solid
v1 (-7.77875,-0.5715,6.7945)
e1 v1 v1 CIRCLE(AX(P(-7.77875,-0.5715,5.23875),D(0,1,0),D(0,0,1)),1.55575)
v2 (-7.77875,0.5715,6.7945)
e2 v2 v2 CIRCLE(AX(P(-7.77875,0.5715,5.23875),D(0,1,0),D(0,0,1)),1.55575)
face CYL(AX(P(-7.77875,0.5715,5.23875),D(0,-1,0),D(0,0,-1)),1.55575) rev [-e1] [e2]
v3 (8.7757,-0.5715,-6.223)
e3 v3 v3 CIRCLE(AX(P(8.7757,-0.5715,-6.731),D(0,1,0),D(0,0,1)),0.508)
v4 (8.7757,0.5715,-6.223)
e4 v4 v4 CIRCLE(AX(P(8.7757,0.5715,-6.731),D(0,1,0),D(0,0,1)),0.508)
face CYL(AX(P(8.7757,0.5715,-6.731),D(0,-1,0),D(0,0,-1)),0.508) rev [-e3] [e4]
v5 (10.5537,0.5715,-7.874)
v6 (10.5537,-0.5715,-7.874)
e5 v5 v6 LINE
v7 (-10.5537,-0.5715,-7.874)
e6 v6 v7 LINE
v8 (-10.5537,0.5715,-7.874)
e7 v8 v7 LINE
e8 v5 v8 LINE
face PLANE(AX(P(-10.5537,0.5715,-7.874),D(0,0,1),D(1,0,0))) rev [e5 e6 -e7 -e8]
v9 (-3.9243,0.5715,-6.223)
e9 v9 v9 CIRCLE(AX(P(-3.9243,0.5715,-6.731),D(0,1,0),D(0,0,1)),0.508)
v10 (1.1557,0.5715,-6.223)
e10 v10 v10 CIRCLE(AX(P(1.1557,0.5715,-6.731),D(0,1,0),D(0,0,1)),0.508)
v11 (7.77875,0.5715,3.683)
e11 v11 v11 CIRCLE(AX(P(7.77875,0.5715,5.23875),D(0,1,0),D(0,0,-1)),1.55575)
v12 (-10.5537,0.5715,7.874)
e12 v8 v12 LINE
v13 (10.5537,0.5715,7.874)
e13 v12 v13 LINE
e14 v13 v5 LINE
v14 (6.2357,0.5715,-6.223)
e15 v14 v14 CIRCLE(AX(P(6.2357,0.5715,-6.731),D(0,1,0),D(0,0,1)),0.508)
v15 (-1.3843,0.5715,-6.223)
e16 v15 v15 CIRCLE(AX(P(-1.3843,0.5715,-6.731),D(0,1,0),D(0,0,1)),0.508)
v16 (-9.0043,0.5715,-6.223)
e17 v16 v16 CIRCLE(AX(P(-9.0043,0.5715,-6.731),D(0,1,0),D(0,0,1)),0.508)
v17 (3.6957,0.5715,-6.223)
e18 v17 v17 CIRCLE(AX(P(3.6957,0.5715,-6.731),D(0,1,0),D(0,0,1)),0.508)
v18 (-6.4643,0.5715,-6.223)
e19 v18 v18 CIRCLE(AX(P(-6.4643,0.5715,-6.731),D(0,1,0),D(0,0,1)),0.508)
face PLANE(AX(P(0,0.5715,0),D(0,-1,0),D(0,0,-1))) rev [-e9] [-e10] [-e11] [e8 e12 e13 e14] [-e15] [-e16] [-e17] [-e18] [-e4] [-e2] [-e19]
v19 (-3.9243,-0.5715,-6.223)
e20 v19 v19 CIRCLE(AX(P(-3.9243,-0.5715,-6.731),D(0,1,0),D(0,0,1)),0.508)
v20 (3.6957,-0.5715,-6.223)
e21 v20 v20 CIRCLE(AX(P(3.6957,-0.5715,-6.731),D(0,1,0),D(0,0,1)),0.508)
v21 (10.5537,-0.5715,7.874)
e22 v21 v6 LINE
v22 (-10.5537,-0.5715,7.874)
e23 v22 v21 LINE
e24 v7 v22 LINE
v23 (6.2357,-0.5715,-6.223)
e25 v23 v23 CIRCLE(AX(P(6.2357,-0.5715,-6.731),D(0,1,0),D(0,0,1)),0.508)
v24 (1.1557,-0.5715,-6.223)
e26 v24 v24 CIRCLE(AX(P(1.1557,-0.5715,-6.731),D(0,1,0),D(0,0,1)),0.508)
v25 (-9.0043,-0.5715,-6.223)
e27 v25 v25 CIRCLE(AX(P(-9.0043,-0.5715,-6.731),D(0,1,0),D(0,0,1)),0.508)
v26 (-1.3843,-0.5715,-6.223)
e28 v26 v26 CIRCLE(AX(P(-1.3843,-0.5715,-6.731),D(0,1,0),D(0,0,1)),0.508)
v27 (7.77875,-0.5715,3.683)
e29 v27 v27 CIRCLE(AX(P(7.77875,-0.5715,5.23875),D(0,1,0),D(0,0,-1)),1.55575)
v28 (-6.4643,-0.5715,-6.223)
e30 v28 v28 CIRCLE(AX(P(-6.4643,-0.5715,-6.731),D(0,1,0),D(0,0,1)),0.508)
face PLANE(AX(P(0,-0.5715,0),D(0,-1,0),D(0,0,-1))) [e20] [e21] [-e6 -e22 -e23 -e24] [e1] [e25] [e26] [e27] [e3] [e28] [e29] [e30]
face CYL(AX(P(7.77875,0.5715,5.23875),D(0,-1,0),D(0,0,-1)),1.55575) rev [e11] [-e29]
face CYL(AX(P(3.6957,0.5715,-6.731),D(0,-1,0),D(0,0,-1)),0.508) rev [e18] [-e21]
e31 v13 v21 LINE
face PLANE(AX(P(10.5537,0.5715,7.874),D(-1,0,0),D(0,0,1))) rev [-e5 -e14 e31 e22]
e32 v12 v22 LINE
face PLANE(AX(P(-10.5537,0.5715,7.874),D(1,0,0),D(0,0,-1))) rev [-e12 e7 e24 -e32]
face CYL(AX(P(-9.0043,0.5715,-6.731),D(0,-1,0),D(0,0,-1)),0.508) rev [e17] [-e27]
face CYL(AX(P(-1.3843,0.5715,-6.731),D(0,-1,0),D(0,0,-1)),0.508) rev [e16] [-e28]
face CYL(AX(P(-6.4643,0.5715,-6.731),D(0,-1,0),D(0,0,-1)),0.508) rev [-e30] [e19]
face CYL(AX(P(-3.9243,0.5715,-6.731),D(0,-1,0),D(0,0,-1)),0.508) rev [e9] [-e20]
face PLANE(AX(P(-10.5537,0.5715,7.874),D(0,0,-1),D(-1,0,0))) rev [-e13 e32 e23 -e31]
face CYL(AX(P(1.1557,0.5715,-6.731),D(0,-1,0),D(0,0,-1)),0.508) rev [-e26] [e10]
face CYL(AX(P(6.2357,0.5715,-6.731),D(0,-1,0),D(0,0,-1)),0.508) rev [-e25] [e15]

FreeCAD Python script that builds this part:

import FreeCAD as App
import Part
import Sketcher
from FreeCAD import Vector
Q = App.Units.Quantity

doc = App.newDocument("Part")
body = doc.addObject("PartDesign::Body", "Body")

# Sketch on XZ plane
sketch1 = doc.addObject("Sketcher::SketchObject", "Sketch")
body.addObject(sketch1)
sketch1.AttachmentSupport = (doc.XZ_Plane, [""])
sketch1.MapMode = "FlatFace"
sketch1.addGeometry(Part.LineSegment(Vector(-10.6, -7.9, 0), Vector(-10.6, 7.9, 0)), False)
sketch1.addGeometry(Part.LineSegment(Vector(-10.6, 7.9, 0), Vector(10.6, 7.9, 0)), False)
sketch1.addGeometry(Part.LineSegment(Vector(10.6, 7.9, 0), Vector(10.6, -7.9, 0)), False)
sketch1.addGeometry(Part.LineSegment(Vector(10.6, -7.9, 0), Vector(-10.6, -7.9, 0)), False)
sketch1.addGeometry(Part.Circle(Vector(-7.8, 5.2, 0), Vector(0, 0, 1), 1.6), False)
sketch1.addGeometry(Part.Circle(Vector(7.8, 5.2, 0), Vector(0, 0, 1), 1.6), False)
sketch1.addGeometry(Part.Circle(Vector(-9, -6.7, 0), Vector(0, 0, 1), 0.5), False)
sketch1.addGeometry(Part.Circle(Vector(-6.5, -6.7, 0), Vector(0, 0, 1), 0.5), False)
sketch1.addGeometry(Part.Circle(Vector(-3.9, -6.7, 0), Vector(0, 0, 1), 0.5), False)
sketch1.addGeometry(Part.Circle(Vector(-1.4, -6.7, 0), Vector(0, 0, 1), 0.5), False)
sketch1.addGeometry(Part.Circle(Vector(1.2, -6.7, 0), Vector(0, 0, 1), 0.5), False)
sketch1.addGeometry(Part.Circle(Vector(3.7, -6.7, 0), Vector(0, 0, 1), 0.5), False)
sketch1.addGeometry(Part.Circle(Vector(6.2, -6.7, 0), Vector(0, 0, 1), 0.5), False)
sketch1.addGeometry(Part.Circle(Vector(8.8, -6.7, 0), Vector(0, 0, 1), 0.5), False)
sketch1.addConstraint(Sketcher.Constraint("Coincident", 0, 2, 1, 1))
sketch1.addConstraint(Sketcher.Constraint("Coincident", 1, 2, 2, 1))
sketch1.addConstraint(Sketcher.Constraint("Coincident", 2, 2, 3, 1))
sketch1.addConstraint(Sketcher.Constraint("Coincident", 3, 2, 0, 1))
sketch1.addConstraint(Sketcher.Constraint("Vertical", 0))
sketch1.addConstraint(Sketcher.Constraint("Horizontal", 1))
sketch1.addConstraint(Sketcher.Constraint("Vertical", 2))
sketch1.addConstraint(Sketcher.Constraint("Horizontal", 3))
sketch1.addConstraint(Sketcher.Constraint("Equal", 4, 5))
sketch1.addConstraint(Sketcher.Constraint("Equal", 6, 7))
sketch1.addConstraint(Sketcher.Constraint("Equal", 7, 8))
sketch1.addConstraint(Sketcher.Constraint("Equal", 8, 9))
sketch1.addConstraint(Sketcher.Constraint("Equal", 9, 10))
sketch1.addConstraint(Sketcher.Constraint("Equal", 10, 11))
sketch1.addConstraint(Sketcher.Constraint("Equal", 11, 12))
sketch1.addConstraint(Sketcher.Constraint("Equal", 12, 13))
sketch1.addConstraint(Sketcher.Constraint("Symmetric", 0, 2, 2, 2, -1, 1))
sketch1.addConstraint(Sketcher.Constraint("Symmetric", 4, 3, 5, 3, -2))
sketch1.addConstraint(Sketcher.Constraint("Horizontal", 6, 3, 7, 3))
sketch1.addConstraint(Sketcher.Constraint("Horizontal", 7, 3, 8, 3))
sketch1.addConstraint(Sketcher.Constraint("Horizontal", 8, 3, 9, 3))
sketch1.addConstraint(Sketcher.Constraint("Horizontal", 9, 3, 10, 3))
sketch1.addConstraint(Sketcher.Constraint("Horizontal", 10, 3, 11, 3))
sketch1.addConstraint(Sketcher.Constraint("Horizontal", 11, 3, 12, 3))
sketch1.addConstraint(Sketcher.Constraint("Horizontal", 12, 3, 13, 3))
sketch1.addConstraint(Sketcher.Constraint("Diameter", 6, Q("0.04 in")))
sketch1.addConstraint(Sketcher.Constraint("Diameter", 4, Q("0.1225 in")))
sketch1.addConstraint(Sketcher.Constraint("DistanceY", 0, 1, 0, 2, Q("0.62 in")))
sketch1.addConstraint(Sketcher.Constraint("DistanceX", 6, 3, 7, 3, Q("0.1 in")))
sketch1.addConstraint(Sketcher.Constraint("DistanceX", 7, 3, 8, 3, Q("0.1 in")))
sketch1.addConstraint(Sketcher.Constraint("DistanceX", 8, 3, 9, 3, Q("0.1 in")))
sketch1.addConstraint(Sketcher.Constraint("DistanceX", 9, 3, 10, 3, Q("0.1 in")))
sketch1.addConstraint(Sketcher.Constraint("DistanceX", 10, 3, 11, 3, Q("0.1 in")))
sketch1.addConstraint(Sketcher.Constraint("DistanceX", 11, 3, 12, 3, Q("0.1 in")))
sketch1.addConstraint(Sketcher.Constraint("DistanceX", 12, 3, 13, 3, Q("0.1 in")))
sketch1.addConstraint(Sketcher.Constraint("DistanceX", 1, 1, 1, 2, Q("0.831 in")))
sketch1.addConstraint(Sketcher.Constraint("DistanceX", 13, 3, 1, 2, Q("0.07 in")))
sketch1.addConstraint(Sketcher.Constraint("DistanceY", 6, 3, -1, 1, Q("0.265 in")))
sketch1.addConstraint(Sketcher.Constraint("DistanceX", 4, 3, 5, 3, Q("0.6125 in")))
sketch1.addConstraint(Sketcher.Constraint("DistanceY", -1, 1, 4, 3, 5.23875))
pad1 = doc.addObject("PartDesign::Pad", "Pad")
body.addObject(pad1)
pad1.Profile = sketch1
pad1.Length = Q("0.045 in")
pad1.Midplane = True

doc.recompute()
